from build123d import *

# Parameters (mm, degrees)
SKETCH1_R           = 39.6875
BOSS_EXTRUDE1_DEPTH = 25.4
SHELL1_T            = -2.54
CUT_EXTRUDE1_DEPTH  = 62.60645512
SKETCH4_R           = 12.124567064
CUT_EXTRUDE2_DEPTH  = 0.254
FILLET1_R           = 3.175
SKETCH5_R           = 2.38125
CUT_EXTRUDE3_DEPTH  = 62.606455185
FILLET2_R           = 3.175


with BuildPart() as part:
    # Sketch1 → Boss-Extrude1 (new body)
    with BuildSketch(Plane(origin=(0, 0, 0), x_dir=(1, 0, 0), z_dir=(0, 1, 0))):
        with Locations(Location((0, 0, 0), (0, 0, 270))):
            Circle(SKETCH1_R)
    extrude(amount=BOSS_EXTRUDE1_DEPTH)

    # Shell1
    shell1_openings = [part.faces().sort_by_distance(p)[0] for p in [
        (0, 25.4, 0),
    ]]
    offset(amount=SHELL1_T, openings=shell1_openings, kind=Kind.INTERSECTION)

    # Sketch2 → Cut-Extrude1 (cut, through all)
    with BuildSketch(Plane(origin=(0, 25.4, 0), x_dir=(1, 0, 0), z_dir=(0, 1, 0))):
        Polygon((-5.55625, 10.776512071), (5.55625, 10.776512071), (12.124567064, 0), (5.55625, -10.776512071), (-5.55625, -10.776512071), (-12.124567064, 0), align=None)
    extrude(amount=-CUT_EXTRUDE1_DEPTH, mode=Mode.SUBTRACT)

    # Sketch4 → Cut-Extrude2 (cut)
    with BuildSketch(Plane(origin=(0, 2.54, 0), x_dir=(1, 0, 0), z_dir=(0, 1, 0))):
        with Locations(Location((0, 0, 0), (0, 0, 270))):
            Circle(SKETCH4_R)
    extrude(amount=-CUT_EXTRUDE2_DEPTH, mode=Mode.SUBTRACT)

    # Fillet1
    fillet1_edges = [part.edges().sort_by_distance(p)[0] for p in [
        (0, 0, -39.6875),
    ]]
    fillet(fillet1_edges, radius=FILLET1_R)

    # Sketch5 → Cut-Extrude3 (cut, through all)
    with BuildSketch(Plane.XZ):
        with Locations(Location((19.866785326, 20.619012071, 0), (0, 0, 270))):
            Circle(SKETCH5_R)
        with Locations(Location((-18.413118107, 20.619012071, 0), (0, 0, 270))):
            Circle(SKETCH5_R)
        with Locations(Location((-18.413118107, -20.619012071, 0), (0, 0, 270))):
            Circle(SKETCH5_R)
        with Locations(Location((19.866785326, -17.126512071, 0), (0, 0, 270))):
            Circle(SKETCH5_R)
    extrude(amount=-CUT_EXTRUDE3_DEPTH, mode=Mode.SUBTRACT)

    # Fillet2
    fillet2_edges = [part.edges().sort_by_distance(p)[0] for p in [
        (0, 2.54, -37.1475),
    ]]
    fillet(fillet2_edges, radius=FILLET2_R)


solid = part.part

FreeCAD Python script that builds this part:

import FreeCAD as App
import Part
import Sketcher
from FreeCAD import Vector
Q = App.Units.Quantity


def edges_at(feature, points):
    """Names of the edges that pass closest to the given points."""
    edges = feature.Shape.Edges
    near = lambda p: min(range(len(edges)), key=lambda i: edges[i].distToShape(Part.Vertex(*p))[0])
    return sorted({f"Edge{near(p) + 1}" for p in points})


def faces_at(feature, points):
    """Names of the faces that lie closest to the given points."""
    faces = feature.Shape.Faces
    near = lambda p: min(range(len(faces)), key=lambda i: faces[i].distToShape(Part.Vertex(*p))[0])
    return sorted({f"Face{near(p) + 1}" for p in points})


def add_polygon(sketch, points):
    """Adds a closed chain of lines whose ends are joined by coincident constraints."""
    first, n = sketch.GeometryCount, len(points)
    for a, b in zip(points, points[1:] + points[:1]):
        sketch.addGeometry(Part.LineSegment(App.Vector(*a, 0), App.Vector(*b, 0)), False)
    for i in range(n):
        sketch.addConstraint(Sketcher.Constraint("Coincident", first + i, 2, first + (i + 1) % n, 1))

doc = App.newDocument("Part")
body = doc.addObject("PartDesign::Body", "Body")

# Sketch on XZ plane
sketch1 = body.newObject("Sketcher::SketchObject", "Sketch")
sketch1.AttachmentSupport = (doc.getObject("XZ_Plane"), [""])
sketch1.MapMode = "FlatFace"
sketch1.addGeometry(Part.Circle(Vector(0, 0, 0), Vector(0, 0, 1), 40), False)
sketch1.addConstraint([
    Sketcher.Constraint("Coincident", 0, 3, -1, 1),
    Sketcher.Constraint("Diameter", 0, Q("3.125 in")),
])
pad1 = body.newObject("PartDesign::Pad", "Pad")
pad1.Profile = sketch1
pad1.Length = Q("1 in")
pad1.Reversed = True
doc.recompute()

thickness = body.newObject("PartDesign::Thickness", "Thickness")
thickness.Base = (pad1, faces_at(pad1, [(0, 25.4, 0)]))
thickness.Value = Q("0.1 in")
thickness.Reversed = True
thickness.Join = "Intersection"

# Sketch on XZ plane
sketch2 = body.newObject("Sketcher::SketchObject", "Sketch001")
sketch2.AttachmentSupport = (doc.getObject("XZ_Plane"), [""])
sketch2.MapMode = "FlatFace"
sketch2.AttachmentOffset = App.Placement(Vector(0, 0, -1 * 25.4), App.Rotation())
add_polygon(sketch2, [(6, -11), (-6, -11), (-12, 0), (-6, 11), (6, 11), (12, 0)])  # lines 0-5
sketch2.addConstraint([
    Sketcher.Constraint("Horizontal", 0),
    Sketcher.Constraint("Horizontal", 3),
    Sketcher.Constraint("Symmetric", 0, 2, 3, 2, -1, 1),
    Sketcher.Constraint("Symmetric", 1, 2, 4, 2, -1, 1),
    Sketcher.Constraint("PointOnObject", 1, 2, -1),
    Sketcher.Constraint("Parallel", 2, 5),
    Sketcher.Constraint("Vertical", 0, 2, 2, 2),
    Sketcher.Constraint("DistanceX", 0, 2, 0, 1, Q("0.4375 in")),
    Sketcher.Constraint("Distance", 1, Q("12.62046 mm")),
    Sketcher.Constraint("DistanceY", 0, 2, -1, 1, Q("10.776512 mm")),
])
pocket1 = body.newObject("PartDesign::Pocket", "Pocket")
pocket1.Profile = sketch2
pocket1.Type = "ThroughAll"
pocket1.Reversed = True

# Sketch on XZ plane
sketch3 = body.newObject("Sketcher::SketchObject", "Sketch002")
sketch3.AttachmentSupport = (doc.getObject("XZ_Plane"), [""])
sketch3.MapMode = "FlatFace"
sketch3.AttachmentOffset = App.Placement(Vector(0, 0, -0.1 * 25.4), App.Rotation())
sketch3.addGeometry(Part.Circle(Vector(0, 0, 0), Vector(0, 0, 1), 12), False)
sketch3.addConstraint([
    Sketcher.Constraint("Coincident", 0, 3, -1, 1),
    Sketcher.Constraint("Diameter", 0, Q("24.249134 mm")),
])
pocket2 = body.newObject("PartDesign::Pocket", "Pocket001")
pocket2.Profile = sketch3
pocket2.Length = Q("0.01 in")
pocket2.Reversed = True
doc.recompute()

fillet = body.newObject("PartDesign::Fillet", "Fillet")
fillet.Base = (pocket2, edges_at(pocket2, [(0, 0, -39.688)]))
fillet.Radius = Q("0.125 in")

# Sketch on XZ plane
sketch4 = body.newObject("Sketcher::SketchObject", "Sketch003")
sketch4.AttachmentSupport = (doc.getObject("XZ_Plane"), [""])
sketch4.MapMode = "FlatFace"
sketch4.addGeometry([
    Part.Circle(Vector(19.9, 20.6, 0), Vector(0, 0, 1), 2.4),
    Part.Circle(Vector(-18.4, 20.6, 0), Vector(0, 0, 1), 2.4),
    Part.Circle(Vector(-18.4, -20.6, 0), Vector(0, 0, 1), 2.4),
    Part.Circle(Vector(19.9, -17.1, 0), Vector(0, 0, 1), 2.4),
], False)
sketch4.addConstraint([
    Sketcher.Constraint("Equal", 0, 1),
    Sketcher.Constraint("Equal", 1, 2),
    Sketcher.Constraint("Equal", 2, 3),
    Sketcher.Constraint("Symmetric", 1, 3, 2, 3, -1),
    Sketcher.Constraint("Horizontal", 0, 3, 1, 3),
    Sketcher.Constraint("Vertical", 0, 3, 3, 3),
    Sketcher.Constraint("Diameter", 0, Q("0.1875 in")),
    Sketcher.Constraint("DistanceY", 2, 3, 3, 3, Q("0.1375 in")),
    Sketcher.Constraint("DistanceX", 1, 3, -1, 1, Q("18.413118 mm")),
    Sketcher.Constraint("DistanceX", -1, 1, 0, 3, Q("19.866785 mm")),
    Sketcher.Constraint("DistanceY", -1, 1, 0, 3, Q("20.619012 mm")),
])
pocket3 = body.newObject("PartDesign::Pocket", "Pocket002")
pocket3.Profile = sketch4
pocket3.Type = "ThroughAll"
doc.recompute()

fillet2 = body.newObject("PartDesign::Fillet", "Fillet001")
fillet2.Base = (pocket3, edges_at(pocket3, [(0, 2.54, -37.148)]))
fillet2.Radius = Q("0.125 in")

doc.recompute()
